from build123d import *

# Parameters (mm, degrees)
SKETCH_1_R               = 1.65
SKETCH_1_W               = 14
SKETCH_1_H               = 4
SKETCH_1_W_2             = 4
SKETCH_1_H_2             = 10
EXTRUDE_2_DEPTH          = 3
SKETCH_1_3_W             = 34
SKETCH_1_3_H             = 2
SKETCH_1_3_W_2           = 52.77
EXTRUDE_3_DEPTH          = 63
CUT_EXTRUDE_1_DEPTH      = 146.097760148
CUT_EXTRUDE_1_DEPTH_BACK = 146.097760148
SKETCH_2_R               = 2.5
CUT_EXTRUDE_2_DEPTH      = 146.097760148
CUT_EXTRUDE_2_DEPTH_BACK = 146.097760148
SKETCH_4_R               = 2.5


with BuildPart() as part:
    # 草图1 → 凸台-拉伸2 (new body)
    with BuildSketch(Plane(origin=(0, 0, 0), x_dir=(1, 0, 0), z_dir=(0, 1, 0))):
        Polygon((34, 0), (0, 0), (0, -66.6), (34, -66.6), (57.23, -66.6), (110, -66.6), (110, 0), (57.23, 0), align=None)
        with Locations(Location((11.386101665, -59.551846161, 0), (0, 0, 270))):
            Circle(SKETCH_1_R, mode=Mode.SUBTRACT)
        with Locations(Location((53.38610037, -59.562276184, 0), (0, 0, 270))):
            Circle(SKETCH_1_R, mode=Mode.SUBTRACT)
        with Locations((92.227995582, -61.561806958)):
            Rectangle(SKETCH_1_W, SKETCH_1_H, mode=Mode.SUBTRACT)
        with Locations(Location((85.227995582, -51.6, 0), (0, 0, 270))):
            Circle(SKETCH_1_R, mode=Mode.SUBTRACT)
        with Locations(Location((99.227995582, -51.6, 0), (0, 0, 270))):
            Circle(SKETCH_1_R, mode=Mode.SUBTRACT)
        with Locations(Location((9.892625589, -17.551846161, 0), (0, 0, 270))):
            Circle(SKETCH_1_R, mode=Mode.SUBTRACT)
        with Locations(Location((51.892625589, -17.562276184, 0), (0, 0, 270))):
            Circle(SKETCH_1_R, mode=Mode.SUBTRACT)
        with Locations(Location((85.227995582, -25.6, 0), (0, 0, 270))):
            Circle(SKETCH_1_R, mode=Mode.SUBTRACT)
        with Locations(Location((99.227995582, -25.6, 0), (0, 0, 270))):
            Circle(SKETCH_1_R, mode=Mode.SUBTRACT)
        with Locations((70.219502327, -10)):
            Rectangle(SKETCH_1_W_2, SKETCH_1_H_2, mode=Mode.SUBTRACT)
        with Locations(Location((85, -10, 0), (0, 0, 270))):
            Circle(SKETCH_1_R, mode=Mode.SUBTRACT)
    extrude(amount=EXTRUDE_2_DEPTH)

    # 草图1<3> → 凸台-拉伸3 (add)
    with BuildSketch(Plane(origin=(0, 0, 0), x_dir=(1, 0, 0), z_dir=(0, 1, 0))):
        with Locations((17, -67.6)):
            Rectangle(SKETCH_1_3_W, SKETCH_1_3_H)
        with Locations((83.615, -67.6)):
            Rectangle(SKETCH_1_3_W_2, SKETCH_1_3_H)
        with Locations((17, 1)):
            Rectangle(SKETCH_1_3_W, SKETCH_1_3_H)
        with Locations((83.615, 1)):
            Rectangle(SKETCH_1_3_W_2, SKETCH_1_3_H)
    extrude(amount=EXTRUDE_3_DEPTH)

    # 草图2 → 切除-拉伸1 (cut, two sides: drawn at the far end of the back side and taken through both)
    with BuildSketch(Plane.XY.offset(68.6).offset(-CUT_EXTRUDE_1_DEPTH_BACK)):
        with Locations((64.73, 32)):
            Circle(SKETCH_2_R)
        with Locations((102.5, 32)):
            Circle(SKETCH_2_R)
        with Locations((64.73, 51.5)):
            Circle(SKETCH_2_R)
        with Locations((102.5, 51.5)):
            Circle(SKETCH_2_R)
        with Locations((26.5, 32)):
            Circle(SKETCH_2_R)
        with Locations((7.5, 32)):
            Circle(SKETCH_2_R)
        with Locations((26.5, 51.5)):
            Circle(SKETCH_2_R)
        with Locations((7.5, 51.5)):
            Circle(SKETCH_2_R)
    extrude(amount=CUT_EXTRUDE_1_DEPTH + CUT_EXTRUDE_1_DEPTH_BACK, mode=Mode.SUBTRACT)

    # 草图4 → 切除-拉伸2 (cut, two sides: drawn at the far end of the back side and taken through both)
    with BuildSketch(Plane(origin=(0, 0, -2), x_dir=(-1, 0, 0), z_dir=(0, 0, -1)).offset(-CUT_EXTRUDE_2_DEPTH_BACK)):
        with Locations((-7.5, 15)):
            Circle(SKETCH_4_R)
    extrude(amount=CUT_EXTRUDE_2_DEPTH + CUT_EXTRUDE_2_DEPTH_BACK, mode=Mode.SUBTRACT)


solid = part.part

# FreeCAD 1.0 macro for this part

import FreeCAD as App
import Part
import Sketcher
from FreeCAD import Vector

doc = App.newDocument("Part")
body = doc.addObject("PartDesign::Body", "Body")

# Sketch on XZ plane
sketch1 = body.newObject("Sketcher::SketchObject", "Sketch")
sketch1.AttachmentSupport = (doc.getObject("XZ_Plane"), [""])
sketch1.MapMode = "FlatFace"
sketch1.addGeometry(Part.LineSegment(Vector(0, 0, 0), Vector(0, 66.6, 0)), False)
sketch1.addGeometry(Part.LineSegment(Vector(0, 66.6, 0), Vector(110, 66.6, 0)), False)
sketch1.addGeometry(Part.LineSegment(Vector(110, 66.6, 0), Vector(110, 0, 0)), False)
sketch1.addGeometry(Part.LineSegment(Vector(110, 0, 0), Vector(0, 0, 0)), False)
sketch1.addGeometry(Part.Circle(Vector(11.386102, 59.551846, 0), Vector(0, 0, 1), 1.65), False)
sketch1.addGeometry(Part.Circle(Vector(53.3861, 59.562276, 0), Vector(0, 0, 1), 1.65), False)
sketch1.addGeometry(Part.LineSegment(Vector(99.227996, 63.561807, 0), Vector(85.227996, 63.561807, 0)), False)
sketch1.addGeometry(Part.LineSegment(Vector(85.227996, 63.561807, 0), Vector(85.227996, 59.561807, 0)), False)
sketch1.addGeometry(Part.LineSegment(Vector(85.227996, 59.561807, 0), Vector(99.227996, 59.561807, 0)), False)
sketch1.addGeometry(Part.LineSegment(Vector(99.227996, 59.561807, 0), Vector(99.227996, 63.561807, 0)), False)
sketch1.addGeometry(Part.Circle(Vector(85.227996, 51.6, 0), Vector(0, 0, 1), 1.65), False)
sketch1.addGeometry(Part.Circle(Vector(99.227996, 51.6, 0), Vector(0, 0, 1), 1.65), False)
sketch1.addGeometry(Part.Circle(Vector(9.892626, 17.551846, 0), Vector(0, 0, 1), 1.65), False)
sketch1.addGeometry(Part.Circle(Vector(51.892626, 17.562276, 0), Vector(0, 0, 1), 1.65), False)
sketch1.addGeometry(Part.Circle(Vector(85.227996, 25.6, 0), Vector(0, 0, 1), 1.65), False)
sketch1.addGeometry(Part.Circle(Vector(99.227996, 25.6, 0), Vector(0, 0, 1), 1.65), False)
sketch1.addGeometry(Part.LineSegment(Vector(72.219502, 15, 0), Vector(68.219502, 15, 0)), False)
sketch1.addGeometry(Part.LineSegment(Vector(68.219502, 15, 0), Vector(68.219502, 5, 0)), False)
sketch1.addGeometry(Part.LineSegment(Vector(68.219502, 5, 0), Vector(72.219502, 5, 0)), False)
sketch1.addGeometry(Part.LineSegment(Vector(72.219502, 5, 0), Vector(72.219502, 15, 0)), False)
sketch1.addGeometry(Part.Circle(Vector(85, 10, 0), Vector(0, 0, 1), 1.65), False)
sketch1.addConstraint(Sketcher.Constraint("Coincident", 0, 2, 1, 1))
sketch1.addConstraint(Sketcher.Constraint("Coincident", 1, 2, 2, 1))
sketch1.addConstraint(Sketcher.Constraint("Coincident", 2, 2, 3, 1))
sketch1.addConstraint(Sketcher.Constraint("Coincident", 3, 2, 0, 1))
sketch1.addConstraint(Sketcher.Constraint("Coincident", 6, 2, 7, 1))
sketch1.addConstraint(Sketcher.Constraint("Coincident", 7, 2, 8, 1))
sketch1.addConstraint(Sketcher.Constraint("Coincident", 8, 2, 9, 1))
sketch1.addConstraint(Sketcher.Constraint("Coincident", 9, 2, 6, 1))
sketch1.addConstraint(Sketcher.Constraint("Coincident", 16, 2, 17, 1))
sketch1.addConstraint(Sketcher.Constraint("Coincident", 17, 2, 18, 1))
sketch1.addConstraint(Sketcher.Constraint("Coincident", 18, 2, 19, 1))
sketch1.addConstraint(Sketcher.Constraint("Coincident", 19, 2, 16, 1))
sketch1.addConstraint(Sketcher.Constraint("Vertical", 0))
sketch1.addConstraint(Sketcher.Constraint("Horizontal", 1))
sketch1.addConstraint(Sketcher.Constraint("Vertical", 2))
sketch1.addConstraint(Sketcher.Constraint("Horizontal", 3))
sketch1.addConstraint(Sketcher.Constraint("Horizontal", 6))
sketch1.addConstraint(Sketcher.Constraint("Vertical", 7))
sketch1.addConstraint(Sketcher.Constraint("Horizontal", 8))
sketch1.addConstraint(Sketcher.Constraint("Vertical", 9))
sketch1.addConstraint(Sketcher.Constraint("Horizontal", 16))
sketch1.addConstraint(Sketcher.Constraint("Vertical", 17))
sketch1.addConstraint(Sketcher.Constraint("Horizontal", 18))
sketch1.addConstraint(Sketcher.Constraint("Vertical", 19))
sketch1.addConstraint(Sketcher.Constraint("Coincident", 3, 2, -1, 1))
sketch1.addConstraint(Sketcher.Constraint("Equal", 4, 5))
sketch1.addConstraint(Sketcher.Constraint("Equal", 5, 10))
sketch1.addConstraint(Sketcher.Constraint("Equal", 10, 11))
sketch1.addConstraint(Sketcher.Constraint("Equal", 11, 12))
sketch1.addConstraint(Sketcher.Constraint("Equal", 12, 13))
sketch1.addConstraint(Sketcher.Constraint("Equal", 13, 14))
sketch1.addConstraint(Sketcher.Constraint("Equal", 14, 15))
sketch1.addConstraint(Sketcher.Constraint("Equal", 15, 20))
sketch1.addConstraint(Sketcher.Constraint("Horizontal", 10, 3, 11, 3))
sketch1.addConstraint(Sketcher.Constraint("Horizontal", 14, 3, 15, 3))
sketch1.addConstraint(Sketcher.Constraint("Vertical", 10, 3, 14, 3))
sketch1.addConstraint(Sketcher.Constraint("Vertical", 11, 3, 15, 3))
sketch1.addConstraint(Sketcher.Constraint("Vertical", 14, 3, 6, 2))
sketch1.addConstraint(Sketcher.Constraint("Vertical", 15, 3, 8, 2))
sketch1.addConstraint(Sketcher.Constraint("Equal", 18, 7))
sketch1.addConstraint(Sketcher.Constraint("Diameter", 4, 3.3))
sketch1.addConstraint(Sketcher.Constraint("DistanceX", 1, 1, 1, 2, 110.0))
sketch1.addConstraint(Sketcher.Constraint("DistanceX", 6, 2, 6, 1, 14.0))
sketch1.addConstraint(Sketcher.Constraint("DistanceX", 16, 2, 16, 1, 4.0))
sketch1.addConstraint(Sketcher.Constraint("DistanceY", 17, 2, 17, 1, 10.0))
sketch1.addConstraint(Sketcher.Constraint("DistanceY", 0, 1, 0, 2, 66.6))
sketch1.addConstraint(Sketcher.Constraint("DistanceX", -1, 1, 20, 3, 85.0))
sketch1.addConstraint(Sketcher.Constraint("DistanceY", -1, 1, 20, 3, 10.0))
sketch1.addConstraint(Sketcher.Constraint("DistanceY", -1, 1, 16, 2, 15.0))
sketch1.addConstraint(Sketcher.Constraint("DistanceX", 4, 3, 5, 3, 41.999999))
sketch1.addConstraint(Sketcher.Constraint("DistanceY", 12, 3, 4, 3, 42.0))
sketch1.addConstraint(Sketcher.Constraint("DistanceX", 12, 3, 13, 3, 42.0))
sketch1.addConstraint(Sketcher.Constraint("DistanceY", 13, 3, 5, 3, 42.0))
sketch1.addConstraint(Sketcher.Constraint("DistanceY", 14, 3, 10, 3, 26.0))
sketch1.addConstraint(Sketcher.Constraint("DistanceY", 10, 3, 0, 2, 15.0))
sketch1.addConstraint(Sketcher.Constraint("DistanceX", -1, 1, 4, 3, 11.386102))
sketch1.addConstraint(Sketcher.Constraint("DistanceY", 4, 3, 5, 3, 0.01043))
sketch1.addConstraint(Sketcher.Constraint("DistanceX", 12, 3, 10, 3, 75.33537))
sketch1.addConstraint(Sketcher.Constraint("DistanceY", 5, 3, 6, 2, 3.999531))
sketch1.addConstraint(Sketcher.Constraint("DistanceY", -1, 1, 4, 3, 59.551846))
sketch1.addConstraint(Sketcher.Constraint("DistanceX", -1, 1, 10, 3, 85.227996))
sketch1.addConstraint(Sketcher.Constraint("DistanceX", -1, 1, 16, 2, 68.219502))
pad1 = body.newObject("PartDesign::Pad", "Pad")
pad1.Profile = sketch1
pad1.Length = 3
pad1.Reversed = True

# Sketch on XZ plane
sketch2 = body.newObject("Sketcher::SketchObject", "Sketch001")
sketch2.AttachmentSupport = (doc.getObject("XZ_Plane"), [""])
sketch2.MapMode = "FlatFace"
sketch2.addGeometry(Part.LineSegment(Vector(0, 66.6, 0), Vector(0, 68.6, 0)), False)
sketch2.addGeometry(Part.LineSegment(Vector(0, 68.6, 0), Vector(34, 68.6, 0)), False)
sketch2.addGeometry(Part.LineSegment(Vector(34, 68.6, 0), Vector(34, 66.6, 0)), False)
sketch2.addGeometry(Part.LineSegment(Vector(34, 66.6, 0), Vector(0, 66.6, 0)), False)
sketch2.addGeometry(Part.LineSegment(Vector(57.23, 66.6, 0), Vector(57.23, 68.6, 0)), False)
sketch2.addGeometry(Part.LineSegment(Vector(57.23, 68.6, 0), Vector(110, 68.6, 0)), False)
sketch2.addGeometry(Part.LineSegment(Vector(110, 68.6, 0), Vector(110, 66.6, 0)), False)
sketch2.addGeometry(Part.LineSegment(Vector(110, 66.6, 0), Vector(57.23, 66.6, 0)), False)
sketch2.addGeometry(Part.LineSegment(Vector(0, -2, 0), Vector(0, 0, 0)), False)
sketch2.addGeometry(Part.LineSegment(Vector(0, 0, 0), Vector(34, 0, 0)), False)
sketch2.addGeometry(Part.LineSegment(Vector(34, 0, 0), Vector(34, -2, 0)), False)
sketch2.addGeometry(Part.LineSegment(Vector(34, -2, 0), Vector(0, -2, 0)), False)
sketch2.addGeometry(Part.LineSegment(Vector(57.23, -2, 0), Vector(57.23, 0, 0)), False)
sketch2.addGeometry(Part.LineSegment(Vector(57.23, 0, 0), Vector(110, 0, 0)), False)
sketch2.addGeometry(Part.LineSegment(Vector(110, 0, 0), Vector(110, -2, 0)), False)
sketch2.addGeometry(Part.LineSegment(Vector(110, -2, 0), Vector(57.23, -2, 0)), False)
sketch2.addConstraint(Sketcher.Constraint("Coincident", 0, 2, 1, 1))
sketch2.addConstraint(Sketcher.Constraint("Coincident", 1, 2, 2, 1))
sketch2.addConstraint(Sketcher.Constraint("Coincident", 2, 2, 3, 1))
sketch2.addConstraint(Sketcher.Constraint("Coincident", 3, 2, 0, 1))
sketch2.addConstraint(Sketcher.Constraint("Coincident", 4, 2, 5, 1))
sketch2.addConstraint(Sketcher.Constraint("Coincident", 5, 2, 6, 1))
sketch2.addConstraint(Sketcher.Constraint("Coincident", 6, 2, 7, 1))
sketch2.addConstraint(Sketcher.Constraint("Coincident", 7, 2, 4, 1))
sketch2.addConstraint(Sketcher.Constraint("Coincident", 8, 2, 9, 1))
sketch2.addConstraint(Sketcher.Constraint("Coincident", 9, 2, 10, 1))
sketch2.addConstraint(Sketcher.Constraint("Coincident", 10, 2, 11, 1))
sketch2.addConstraint(Sketcher.Constraint("Coincident", 11, 2, 8, 1))
sketch2.addConstraint(Sketcher.Constraint("Coincident", 12, 2, 13, 1))
sketch2.addConstraint(Sketcher.Constraint("Coincident", 13, 2, 14, 1))
sketch2.addConstraint(Sketcher.Constraint("Coincident", 14, 2, 15, 1))
sketch2.addConstraint(Sketcher.Constraint("Coincident", 15, 2, 12, 1))
sketch2.addConstraint(Sketcher.Constraint("Vertical", 0))
sketch2.addConstraint(Sketcher.Constraint("Horizontal", 1))
sketch2.addConstraint(Sketcher.Constraint("Vertical", 2))
sketch2.addConstraint(Sketcher.Constraint("Horizontal", 3))
sketch2.addConstraint(Sketcher.Constraint("Vertical", 4))
sketch2.addConstraint(Sketcher.Constraint("Horizontal", 5))
sketch2.addConstraint(Sketcher.Constraint("Vertical", 6))
sketch2.addConstraint(Sketcher.Constraint("Horizontal", 7))
sketch2.addConstraint(Sketcher.Constraint("Vertical", 8))
sketch2.addConstraint(Sketcher.Constraint("Horizontal", 9))
sketch2.addConstraint(Sketcher.Constraint("Vertical", 10))
sketch2.addConstraint(Sketcher.Constraint("Horizontal", 11))
sketch2.addConstraint(Sketcher.Constraint("Vertical", 12))
sketch2.addConstraint(Sketcher.Constraint("Horizontal", 13))
sketch2.addConstraint(Sketcher.Constraint("Vertical", 14))
sketch2.addConstraint(Sketcher.Constraint("Horizontal", 15))
sketch2.addConstraint(Sketcher.Constraint("Coincident", 8, 2, -1, 1))
sketch2.addConstraint(Sketcher.Constraint("PointOnObject", 0, 2, -2))
sketch2.addConstraint(Sketcher.Constraint("PointOnObject", 12, 2, -1))
sketch2.addConstraint(Sketcher.Constraint("Horizontal", 1, 2, 4, 2))
sketch2.addConstraint(Sketcher.Constraint("Horizontal", 3, 2, 6, 2))
sketch2.addConstraint(Sketcher.Constraint("Horizontal", 11, 2, 14, 2))
sketch2.addConstraint(Sketcher.Constraint("Vertical", 2, 2, 9, 2))
sketch2.addConstraint(Sketcher.Constraint("Vertical", 7, 2, 12, 2))
sketch2.addConstraint(Sketcher.Constraint("Vertical", 6, 2, 13, 2))
sketch2.addConstraint(Sketcher.Constraint("Equal", 6, 8))
sketch2.addConstraint(Sketcher.Constraint("DistanceX", 1, 1, 1, 2, 34.0))
sketch2.addConstraint(Sketcher.Constraint("DistanceY", 0, 1, 0, 2, 2.0))
sketch2.addConstraint(Sketcher.Constraint("DistanceX", -1, 1, 5, 2, 110.0))
sketch2.addConstraint(Sketcher.Constraint("DistanceX", 5, 1, 5, 2, 52.77))
sketch2.addConstraint(Sketcher.Constraint("DistanceY", -1, 1, 0, 2, 68.6))
pad2 = body.newObject("PartDesign::Pad", "Pad001")
pad2.Profile = sketch2
pad2.Length = 63
pad2.Reversed = True

# Sketch on XY plane
sketch3 = body.newObject("Sketcher::SketchObject", "Sketch002")
sketch3.AttachmentSupport = (doc.getObject("XY_Plane"), [""])
sketch3.MapMode = "FlatFace"
sketch3.AttachmentOffset = App.Placement(Vector(0, 0, 68.6), App.Rotation())
sketch3.addGeometry(Part.Circle(Vector(64.73, 32, 0), Vector(0, 0, 1), 2.5), False)
sketch3.addGeometry(Part.Circle(Vector(102.5, 32, 0), Vector(0, 0, 1), 2.5), False)
sketch3.addGeometry(Part.Circle(Vector(64.73, 51.5, 0), Vector(0, 0, 1), 2.5), False)
sketch3.addGeometry(Part.Circle(Vector(102.5, 51.5, 0), Vector(0, 0, 1), 2.5), False)
sketch3.addGeometry(Part.Circle(Vector(26.5, 32, 0), Vector(0, 0, 1), 2.5), False)
sketch3.addGeometry(Part.Circle(Vector(7.5, 32, 0), Vector(0, 0, 1), 2.5), False)
sketch3.addGeometry(Part.Circle(Vector(26.5, 51.5, 0), Vector(0, 0, 1), 2.5), False)
sketch3.addGeometry(Part.Circle(Vector(7.5, 51.5, 0), Vector(0, 0, 1), 2.5), False)
sketch3.addConstraint(Sketcher.Constraint("Equal", 0, 1))
sketch3.addConstraint(Sketcher.Constraint("Equal", 1, 2))
sketch3.addConstraint(Sketcher.Constraint("Equal", 2, 3))
sketch3.addConstraint(Sketcher.Constraint("Equal", 3, 4))
sketch3.addConstraint(Sketcher.Constraint("Equal", 4, 5))
sketch3.addConstraint(Sketcher.Constraint("Equal", 5, 6))
sketch3.addConstraint(Sketcher.Constraint("Equal", 6, 7))
sketch3.addConstraint(Sketcher.Constraint("Horizontal", 0, 3, 1, 3))
sketch3.addConstraint(Sketcher.Constraint("Horizontal", 2, 3, 3, 3))
sketch3.addConstraint(Sketcher.Constraint("Horizontal", 1, 3, 4, 3))
sketch3.addConstraint(Sketcher.Constraint("Horizontal", 4, 3, 5, 3))
sketch3.addConstraint(Sketcher.Constraint("Horizontal", 3, 3, 6, 3))
sketch3.addConstraint(Sketcher.Constraint("Horizontal", 6, 3, 7, 3))
sketch3.addConstraint(Sketcher.Constraint("Vertical", 0, 3, 2, 3))
sketch3.addConstraint(Sketcher.Constraint("Vertical", 1, 3, 3, 3))
sketch3.addConstraint(Sketcher.Constraint("Vertical", 4, 3, 6, 3))
sketch3.addConstraint(Sketcher.Constraint("Vertical", 5, 3, 7, 3))
sketch3.addConstraint(Sketcher.Constraint("Diameter", 0, 5.0))
sketch3.addConstraint(Sketcher.Constraint("DistanceY", -1, 1, 0, 3, 32.0))
sketch3.addConstraint(Sketcher.Constraint("DistanceX", 4, 3, 1, 3, 76.0))
sketch3.addConstraint(Sketcher.Constraint("DistanceX", 5, 3, 4, 3, 19.0))
sketch3.addConstraint(Sketcher.Constraint("DistanceX", -1, 1, 1, 3, 102.5))
sketch3.addConstraint(Sketcher.Constraint("DistanceY", -1, 1, 2, 3, 51.5))
sketch3.addConstraint(Sketcher.Constraint("DistanceX", -1, 1, 0, 3, 64.73))
pocket1 = body.newObject("PartDesign::Pocket", "Pocket")
pocket1.Profile = sketch3
pocket1.Type = "ThroughAll"
pocket1.Midplane = True

# Sketch on XY plane
sketch4 = body.newObject("Sketcher::SketchObject", "Sketch003")
sketch4.AttachmentSupport = (doc.getObject("XY_Plane"), [""])
sketch4.MapMode = "FlatFace"
sketch4.AttachmentOffset = App.Placement(Vector(0, 0, -2), App.Rotation())
sketch4.addGeometry(Part.Circle(Vector(7.5, 15, 0), Vector(0, 0, 1), 2.5), False)
sketch4.addConstraint(Sketcher.Constraint("Diameter", 0, 5.0))
sketch4.addConstraint(Sketcher.Constraint("DistanceY", -1, 1, 0, 3, 15.0))
sketch4.addConstraint(Sketcher.Constraint("DistanceX", -1, 1, 0, 3, 7.5))
pocket2 = body.newObject("PartDesign::Pocket", "Pocket001")
pocket2.Profile = sketch4
pocket2.Type = "ThroughAll"
pocket2.Midplane = True

doc.recompute()
